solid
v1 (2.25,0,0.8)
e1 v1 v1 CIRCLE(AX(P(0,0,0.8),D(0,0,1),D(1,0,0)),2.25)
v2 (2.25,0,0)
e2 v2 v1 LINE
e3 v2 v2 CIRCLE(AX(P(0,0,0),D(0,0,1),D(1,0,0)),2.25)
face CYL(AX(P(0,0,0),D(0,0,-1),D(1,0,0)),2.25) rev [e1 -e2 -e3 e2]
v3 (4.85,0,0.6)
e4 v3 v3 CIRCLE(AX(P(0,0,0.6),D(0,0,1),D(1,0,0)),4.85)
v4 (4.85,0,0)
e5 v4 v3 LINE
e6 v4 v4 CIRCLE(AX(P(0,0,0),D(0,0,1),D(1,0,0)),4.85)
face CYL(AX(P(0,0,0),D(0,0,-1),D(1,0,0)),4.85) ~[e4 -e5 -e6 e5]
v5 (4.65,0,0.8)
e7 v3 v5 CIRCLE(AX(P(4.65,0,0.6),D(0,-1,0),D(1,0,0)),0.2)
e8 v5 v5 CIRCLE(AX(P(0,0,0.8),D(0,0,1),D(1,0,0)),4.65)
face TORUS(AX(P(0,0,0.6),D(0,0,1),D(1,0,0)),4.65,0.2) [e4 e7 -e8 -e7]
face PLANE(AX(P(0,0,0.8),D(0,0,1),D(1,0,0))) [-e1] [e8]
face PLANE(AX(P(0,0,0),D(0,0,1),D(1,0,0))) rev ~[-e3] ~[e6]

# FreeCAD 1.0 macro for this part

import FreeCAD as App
import Part
import Sketcher

V = App.Vector
Q = App.Units.Quantity


def edges_at(feature, points):
    """Names of the edges that pass closest to the given points."""
    edges = feature.Shape.Edges
    near = lambda p: min(range(len(edges)), key=lambda i: edges[i].distToShape(Part.Vertex(*p))[0])
    return sorted({f"Edge{near(p) + 1}" for p in points})

doc = App.newDocument("Part")
params = doc.addObject("Spreadsheet::Sheet", "Params")
for row, (alias, value) in enumerate([
    ("sketch1_diameter", "9.7 mm"),
    ("sketch1_diameter2", "4.5 mm"),
    ("pad1_length", "0.8 mm"),
    ("fillet_radius", "0.2 mm"),
], start=1):
    params.set(f"A{row}", alias)
    params.set(f"B{row}", "=" + value)
    params.setAlias(f"B{row}", alias)

body = doc.addObject("PartDesign::Body", "Body")

# Sketch on XY plane
sketch1 = doc.addObject("Sketcher::SketchObject", "Sketch")
body.addObject(sketch1)
sketch1.AttachmentSupport = (doc.XY_Plane, [""])
sketch1.MapMode = "FlatFace"
sketch1.addGeometry([
    Part.Circle(V(0, 0, 0), V(0, 0, 1), 4.85),
    Part.Circle(V(0, 0, 0), V(0, 0, 1), 2.25),
], False)
sketch1.addConstraint([
    Sketcher.Constraint("Coincident", 0, 3, -1, 1),
    Sketcher.Constraint("Coincident", 1, 3, -1, 1),
    Sketcher.Constraint("Diameter", 0, Q("9.7 mm")),
    Sketcher.Constraint("Diameter", 1, Q("4.5 mm")),
])
sketch1.setExpression("Constraints[2]", "Params.sketch1_diameter")
sketch1.setExpression("Constraints[3]", "Params.sketch1_diameter2")
pad1 = doc.addObject("PartDesign::Pad", "Pad")
body.addObject(pad1)
pad1.Profile = sketch1
pad1.setExpression("Length", "Params.pad1_length")
doc.recompute()

fillet = doc.addObject("PartDesign::Fillet", "Fillet")
body.addObject(fillet)
fillet.Base = (pad1, edges_at(pad1, [(-4.85, 0, 0.8)]))
fillet.setExpression("Radius", "Params.fillet_radius")

doc.recompute()
